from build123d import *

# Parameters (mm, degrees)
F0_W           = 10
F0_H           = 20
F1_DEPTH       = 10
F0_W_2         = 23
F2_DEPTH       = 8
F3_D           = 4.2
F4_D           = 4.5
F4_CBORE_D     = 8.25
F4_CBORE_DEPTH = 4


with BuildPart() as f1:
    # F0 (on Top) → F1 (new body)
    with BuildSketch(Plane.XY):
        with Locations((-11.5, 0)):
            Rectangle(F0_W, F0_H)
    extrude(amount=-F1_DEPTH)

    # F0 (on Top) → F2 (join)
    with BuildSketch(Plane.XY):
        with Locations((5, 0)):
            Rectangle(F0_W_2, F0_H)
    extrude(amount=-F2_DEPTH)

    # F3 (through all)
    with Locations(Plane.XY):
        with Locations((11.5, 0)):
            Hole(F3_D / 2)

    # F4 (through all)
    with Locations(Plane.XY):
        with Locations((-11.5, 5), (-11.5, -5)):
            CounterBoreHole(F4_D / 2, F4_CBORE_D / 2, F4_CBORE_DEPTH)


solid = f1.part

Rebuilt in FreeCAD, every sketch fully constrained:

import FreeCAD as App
import Part
import Sketcher


def add_polygon(sketch, points):
    """Adds a closed chain of lines whose ends are joined by coincident constraints."""
    first, n = sketch.GeometryCount, len(points)
    for a, b in zip(points, points[1:] + points[:1]):
        sketch.addGeometry(Part.LineSegment(App.Vector(*a, 0), App.Vector(*b, 0)), False)
    for i in range(n):
        sketch.addConstraint(Sketcher.Constraint("Coincident", first + i, 2, first + (i + 1) % n, 1))

doc = App.newDocument("Part")
body = doc.addObject("PartDesign::Body", "Body")

# Sketch on XY plane
sketch1 = body.newObject("Sketcher::SketchObject", "Sketch")
sketch1.AttachmentSupport = (doc.getObject("XY_Plane"), [""])
sketch1.MapMode = "FlatFace"
add_polygon(sketch1, [(-16, 10), (-16, -10), (-6, -10), (-6, 10)])  # lines 0-3
sketch1.addConstraint(Sketcher.Constraint("Vertical", 0))
sketch1.addConstraint(Sketcher.Constraint("Horizontal", 1))
sketch1.addConstraint(Sketcher.Constraint("Vertical", 2))
sketch1.addConstraint(Sketcher.Constraint("Horizontal", 3))
sketch1.addConstraint(Sketcher.Constraint("DistanceX", 1, 1, 1, 2, 10.0))
sketch1.addConstraint(Sketcher.Constraint("DistanceY", 0, 2, 0, 1, 20.0))
sketch1.addConstraint(Sketcher.Constraint("DistanceY", 0, 2, -1, 1, 10.0))
sketch1.addConstraint(Sketcher.Constraint("DistanceX", 0, 2, -1, 1, 16.5))
pad1 = body.newObject("PartDesign::Pad", "Pad")
pad1.Profile = sketch1
pad1.Length = 10
pad1.Reversed = True

# Sketch on XY plane
sketch2 = body.newObject("Sketcher::SketchObject", "Sketch001")
sketch2.AttachmentSupport = (doc.getObject("XY_Plane"), [""])
sketch2.MapMode = "FlatFace"
add_polygon(sketch2, [(-6, 10), (-6, -10), (16, -10), (16, 10)])  # lines 0-3
sketch2.addConstraint(Sketcher.Constraint("Vertical", 0))
sketch2.addConstraint(Sketcher.Constraint("Horizontal", 1))
sketch2.addConstraint(Sketcher.Constraint("Vertical", 2))
sketch2.addConstraint(Sketcher.Constraint("Horizontal", 3))
sketch2.addConstraint(Sketcher.Constraint("DistanceX", 1, 1, 1, 2, 23.0))
sketch2.addConstraint(Sketcher.Constraint("DistanceY", 0, 2, 0, 1, 20.0))
sketch2.addConstraint(Sketcher.Constraint("DistanceY", 0, 2, -1, 1, 10.0))
sketch2.addConstraint(Sketcher.Constraint("DistanceX", 0, 2, -1, 1, 6.5))
pad2 = body.newObject("PartDesign::Pad", "Pad001")
pad2.Profile = sketch2
pad2.Length = 8
pad2.Reversed = True

# Sketch on XY plane
sketch3 = body.newObject("Sketcher::SketchObject", "Sketch002")
sketch3.AttachmentSupport = (doc.getObject("XY_Plane"), [""])
sketch3.MapMode = "FlatFace"
sketch3.addGeometry(Part.Circle(App.Vector(11.5, 0, 0), App.Vector(0, 0, 1), 2.1), False)
sketch3.addConstraint(Sketcher.Constraint("PointOnObject", 0, 3, -1))
sketch3.addConstraint(Sketcher.Constraint("Diameter", 0, 4.2))
sketch3.addConstraint(Sketcher.Constraint("DistanceX", -1, 1, 0, 3, 11.5))
doc.recompute()
hole = body.newObject("PartDesign::Hole", "Hole")
hole.Profile = sketch3
hole.ThreadType = "None"
hole.Diameter = 4.2
hole.DepthType = "ThroughAll"

# Sketch on XY plane
sketch4 = body.newObject("Sketcher::SketchObject", "Sketch003")
sketch4.AttachmentSupport = (doc.getObject("XY_Plane"), [""])
sketch4.MapMode = "FlatFace"
sketch4.addGeometry(Part.Circle(App.Vector(-11.5, 5, 0), App.Vector(0, 0, 1), 2.2), False)
sketch4.addGeometry(Part.Circle(App.Vector(-11.5, -5, 0), App.Vector(0, 0, 1), 2.2), False)
sketch4.addConstraint(Sketcher.Constraint("Equal", 0, 1))
sketch4.addConstraint(Sketcher.Constraint("Symmetric", 0, 3, 1, 3, -1))
sketch4.addConstraint(Sketcher.Constraint("Diameter", 0, 4.5))
sketch4.addConstraint(Sketcher.Constraint("DistanceY", -1, 1, 0, 3, 5.0))
sketch4.addConstraint(Sketcher.Constraint("DistanceX", 0, 3, -1, 1, 11.5))
doc.recompute()
hole2 = body.newObject("PartDesign::Hole", "Hole001")
hole2.Profile = sketch4
hole2.ThreadType = "None"
hole2.Diameter = 4.5
hole2.DepthType = "ThroughAll"
hole2.HoleCutType = "Counterbore"
hole2.HoleCutDiameter = 8.25
hole2.HoleCutDepth = 4

doc.recompute()
